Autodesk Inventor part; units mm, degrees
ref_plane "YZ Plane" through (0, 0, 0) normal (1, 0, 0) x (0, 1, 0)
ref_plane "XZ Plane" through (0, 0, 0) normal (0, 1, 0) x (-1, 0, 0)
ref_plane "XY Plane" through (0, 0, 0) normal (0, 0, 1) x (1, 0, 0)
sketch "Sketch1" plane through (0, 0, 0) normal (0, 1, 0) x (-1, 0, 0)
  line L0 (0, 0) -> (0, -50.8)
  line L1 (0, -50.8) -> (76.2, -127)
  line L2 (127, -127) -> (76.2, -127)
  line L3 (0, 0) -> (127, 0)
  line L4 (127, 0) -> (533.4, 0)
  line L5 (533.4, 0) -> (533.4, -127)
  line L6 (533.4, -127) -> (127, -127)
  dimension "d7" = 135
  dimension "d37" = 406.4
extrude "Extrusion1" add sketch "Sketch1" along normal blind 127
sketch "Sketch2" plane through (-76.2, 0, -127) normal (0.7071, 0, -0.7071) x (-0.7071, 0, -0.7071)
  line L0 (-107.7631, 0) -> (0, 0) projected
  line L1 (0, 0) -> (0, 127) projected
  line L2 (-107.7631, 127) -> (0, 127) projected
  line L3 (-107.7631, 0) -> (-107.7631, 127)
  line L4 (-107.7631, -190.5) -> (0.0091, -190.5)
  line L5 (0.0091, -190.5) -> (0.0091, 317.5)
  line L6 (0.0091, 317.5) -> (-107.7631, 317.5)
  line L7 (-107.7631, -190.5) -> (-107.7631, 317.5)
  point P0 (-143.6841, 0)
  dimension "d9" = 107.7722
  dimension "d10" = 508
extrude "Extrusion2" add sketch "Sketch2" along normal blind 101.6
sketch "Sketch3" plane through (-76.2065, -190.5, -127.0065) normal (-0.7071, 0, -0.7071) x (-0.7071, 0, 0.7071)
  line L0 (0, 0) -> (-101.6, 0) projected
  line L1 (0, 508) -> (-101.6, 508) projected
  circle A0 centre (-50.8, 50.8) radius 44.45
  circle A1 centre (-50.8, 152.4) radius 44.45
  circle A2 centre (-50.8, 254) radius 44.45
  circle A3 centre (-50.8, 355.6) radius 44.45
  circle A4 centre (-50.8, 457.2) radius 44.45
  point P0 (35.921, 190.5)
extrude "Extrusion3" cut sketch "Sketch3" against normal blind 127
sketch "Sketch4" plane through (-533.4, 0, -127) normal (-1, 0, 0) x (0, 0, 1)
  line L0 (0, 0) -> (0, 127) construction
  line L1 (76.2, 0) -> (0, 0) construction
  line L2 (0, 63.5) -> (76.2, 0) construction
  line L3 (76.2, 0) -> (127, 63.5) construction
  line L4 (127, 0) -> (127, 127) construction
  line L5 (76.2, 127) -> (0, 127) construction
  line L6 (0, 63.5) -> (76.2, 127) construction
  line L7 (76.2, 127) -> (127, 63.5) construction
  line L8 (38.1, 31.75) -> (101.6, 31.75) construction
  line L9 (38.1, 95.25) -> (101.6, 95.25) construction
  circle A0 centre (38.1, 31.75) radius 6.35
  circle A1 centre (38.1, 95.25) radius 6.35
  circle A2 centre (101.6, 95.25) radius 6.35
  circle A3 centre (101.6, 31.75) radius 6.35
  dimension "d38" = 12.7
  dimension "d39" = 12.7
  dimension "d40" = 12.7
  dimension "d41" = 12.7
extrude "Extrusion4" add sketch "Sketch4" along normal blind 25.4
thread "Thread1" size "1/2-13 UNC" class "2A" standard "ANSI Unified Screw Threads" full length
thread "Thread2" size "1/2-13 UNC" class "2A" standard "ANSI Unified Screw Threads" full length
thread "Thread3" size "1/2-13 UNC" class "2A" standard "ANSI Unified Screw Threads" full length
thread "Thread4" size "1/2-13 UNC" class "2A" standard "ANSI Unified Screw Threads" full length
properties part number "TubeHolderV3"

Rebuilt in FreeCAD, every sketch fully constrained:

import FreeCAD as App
import Part
import Sketcher
Q = App.Units.Quantity


def add_polygon(sketch, points):
    """Adds a closed chain of lines whose ends are joined by coincident constraints."""
    first, n = sketch.GeometryCount, len(points)
    for a, b in zip(points, points[1:] + points[:1]):
        sketch.addGeometry(Part.LineSegment(App.Vector(*a, 0), App.Vector(*b, 0)), False)
    for i in range(n):
        sketch.addConstraint(Sketcher.Constraint("Coincident", first + i, 2, first + (i + 1) % n, 1))

doc = App.newDocument("Part")
params = doc.addObject("Spreadsheet::Sheet", "Params")
for row, (alias, value) in enumerate([
    ("sketch1_width", "21 in"),
    ("sketch1_width2", "18 in"),
    ("sketch1_height", "2 in"),
    ("pad1_length", "5 in"),
    ("sketch2_height", "20 in"),
    ("sketch2_width", "4.243 in"),
    ("pad2_length", "4 in"),
    ("sketch3_diameter", "3.5 in"),
    ("pocket1_length", "5 in"),
    ("sketch4_diameter", "0.5 in"),
    ("pad3_length", "1 in"),
], start=1):
    params.set(f"A{row}", alias)
    params.set(f"B{row}", "=" + value)
    params.setAlias(f"B{row}", alias)

body = doc.addObject("PartDesign::Body", "Body")

sketch1 = body.newObject("Sketcher::SketchObject", "Sketch")
sketch1.AttachmentSupport = (doc.getObject("XZ_Plane"), [""])
sketch1.MapMode = "FlatFace"
add_polygon(sketch1, [(-533.4, 0), (0, 0), (0, -50.8), (-76.2, -127), (-533.4, -127)])
sketch1.addConstraint(Sketcher.Constraint("Horizontal", 0))
sketch1.addConstraint(Sketcher.Constraint("Vertical", 1))
sketch1.addConstraint(Sketcher.Constraint("Horizontal", 3))
sketch1.addConstraint(Sketcher.Constraint("Vertical", 4))
sketch1.addConstraint(Sketcher.Constraint("Coincident", 0, 2, -1, 1))
sketch1.addConstraint(Sketcher.Constraint("Angle", 2, Q("-135 deg")))
sketch1.addConstraint(Sketcher.Constraint("DistanceX", 0, 1, 0, 2, Q("21 in")))
sketch1.addConstraint(Sketcher.Constraint("DistanceX", 3, 2, 3, 1, Q("18 in")))
sketch1.addConstraint(Sketcher.Constraint("DistanceY", 1, 2, 1, 1, Q("2 in")))
sketch1.setExpression("Constraints[11]", "Params.sketch1_width")
sketch1.setExpression("Constraints[12]", "Params.sketch1_width2")
sketch1.setExpression("Constraints[13]", "Params.sketch1_height")
pad1 = body.newObject("PartDesign::Pad", "Pad")
pad1.Profile = sketch1
pad1.setExpression("Length", "Params.pad1_length")
pad1.Reversed = True

sketch2 = body.newObject("Sketcher::SketchObject", "Sketch001")
sketch2.Placement = App.Placement(App.Vector(-76.2, 0, -127), App.Rotation(App.Vector(-0.707106781, 0, -0.707106781), App.Vector(0, 0.999999999, 0), App.Vector(0.707106781, 0, -0.707106781), "ZXY"))
add_polygon(sketch2, [(-107.7631, -190.5), (0.0091, -190.5), (0.0091, 317.5), (-107.7631, 317.5)])
sketch2.addConstraint(Sketcher.Constraint("Horizontal", 0))
sketch2.addConstraint(Sketcher.Constraint("Vertical", 1))
sketch2.addConstraint(Sketcher.Constraint("Horizontal", 2))
sketch2.addConstraint(Sketcher.Constraint("Vertical", 3))
sketch2.addConstraint(Sketcher.Constraint("DistanceY", 1, 1, 1, 2, Q("20 in")))
sketch2.addConstraint(Sketcher.Constraint("DistanceX", 0, 1, 0, 2, Q("4.243 in")))
sketch2.addConstraint(Sketcher.Constraint("DistanceY", 0, 2, -1, 1, Q("7.5 in")))
sketch2.addConstraint(Sketcher.Constraint("DistanceX", -1, 1, 0, 2, 0.009))
sketch2.setExpression("Constraints[8]", "Params.sketch2_height")
sketch2.setExpression("Constraints[9]", "Params.sketch2_width")
pad2 = body.newObject("PartDesign::Pad", "Pad001")
pad2.Profile = sketch2
pad2.setExpression("Length", "Params.pad2_length")

sketch3 = body.newObject("Sketcher::SketchObject", "Sketch002")
sketch3.Placement = App.Placement(App.Vector(-76.2065, -190.5, -127.0065), App.Rotation(App.Vector(-0.707106781, 0, 0.707106781), App.Vector(0, 0.999999999, 0), App.Vector(-0.707106781, 0, -0.707106781), "ZXY"))
sketch3.addGeometry(Part.Circle(App.Vector(-50.8, 50.8, 0), App.Vector(0, 0, 1), 44.45), False)
sketch3.addGeometry(Part.Circle(App.Vector(-50.8, 152.4, 0), App.Vector(0, 0, 1), 44.45), False)
sketch3.addGeometry(Part.Circle(App.Vector(-50.8, 254, 0), App.Vector(0, 0, 1), 44.45), False)
sketch3.addGeometry(Part.Circle(App.Vector(-50.8, 355.6, 0), App.Vector(0, 0, 1), 44.45), False)
sketch3.addGeometry(Part.Circle(App.Vector(-50.8, 457.2, 0), App.Vector(0, 0, 1), 44.45), False)
sketch3.addConstraint(Sketcher.Constraint("Equal", 0, 1))
sketch3.addConstraint(Sketcher.Constraint("Equal", 1, 2))
sketch3.addConstraint(Sketcher.Constraint("Equal", 2, 3))
sketch3.addConstraint(Sketcher.Constraint("Equal", 3, 4))
sketch3.addConstraint(Sketcher.Constraint("Vertical", 0, 3, 1, 3))
sketch3.addConstraint(Sketcher.Constraint("Vertical", 1, 3, 2, 3))
sketch3.addConstraint(Sketcher.Constraint("Vertical", 2, 3, 3, 3))
sketch3.addConstraint(Sketcher.Constraint("Vertical", 3, 3, 4, 3))
sketch3.addConstraint(Sketcher.Constraint("Diameter", 0, Q("3.5 in")))
sketch3.addConstraint(Sketcher.Constraint("DistanceX", 0, 3, -1, 1, Q("2 in")))
sketch3.addConstraint(Sketcher.Constraint("DistanceY", -1, 1, 0, 3, Q("2 in")))
sketch3.addConstraint(Sketcher.Constraint("DistanceY", -1, 1, 1, 3, Q("6 in")))
sketch3.addConstraint(Sketcher.Constraint("DistanceY", -1, 1, 2, 3, Q("10 in")))
sketch3.addConstraint(Sketcher.Constraint("DistanceY", -1, 1, 3, 3, Q("14 in")))
sketch3.addConstraint(Sketcher.Constraint("DistanceY", -1, 1, 4, 3, Q("18 in")))
sketch3.setExpression("Constraints[8]", "Params.sketch3_diameter")
pocket1 = body.newObject("PartDesign::Pocket", "Pocket")
pocket1.Profile = sketch3
pocket1.setExpression("Length", "Params.pocket1_length")

sketch4 = body.newObject("Sketcher::SketchObject", "Sketch003")
sketch4.AttachmentSupport = (doc.getObject("YZ_Plane"), [""])
sketch4.MapMode = "FlatFace"
sketch4.AttachmentOffset = App.Placement(App.Vector(0, 0, -21 * 25.4), App.Rotation())
sketch4.addGeometry(Part.Circle(App.Vector(31.75, -88.9, 0), App.Vector(0, 0, 1), 6.35), False)
sketch4.addGeometry(Part.Circle(App.Vector(95.25, -88.9, 0), App.Vector(0, 0, 1), 6.35), False)
sketch4.addGeometry(Part.Circle(App.Vector(95.25, -25.4, 0), App.Vector(0, 0, 1), 6.35), False)
sketch4.addGeometry(Part.Circle(App.Vector(31.75, -25.4, 0), App.Vector(0, 0, 1), 6.35), False)
sketch4.addConstraint(Sketcher.Constraint("Equal", 0, 1))
sketch4.addConstraint(Sketcher.Constraint("Equal", 1, 2))
sketch4.addConstraint(Sketcher.Constraint("Equal", 2, 3))
sketch4.addConstraint(Sketcher.Constraint("Horizontal", 0, 3, 1, 3))
sketch4.addConstraint(Sketcher.Constraint("Horizontal", 2, 3, 3, 3))
sketch4.addConstraint(Sketcher.Constraint("Vertical", 1, 3, 2, 3))
sketch4.addConstraint(Sketcher.Constraint("Vertical", 0, 3, 3, 3))
sketch4.addConstraint(Sketcher.Constraint("Diameter", 0, Q("0.5 in")))
sketch4.addConstraint(Sketcher.Constraint("DistanceY", 2, 3, -1, 1, Q("1 in")))
sketch4.addConstraint(Sketcher.Constraint("DistanceY", 0, 3, -1, 1, Q("3.5 in")))
sketch4.addConstraint(Sketcher.Constraint("DistanceX", 0, 3, 1, 3, Q("2.5 in")))
sketch4.addConstraint(Sketcher.Constraint("DistanceX", -1, 1, 0, 3, Q("1.25 in")))
sketch4.setExpression("Constraints[7]", "Params.sketch4_diameter")
pad3 = body.newObject("PartDesign::Pad", "Pad002")
pad3.Profile = sketch4
pad3.setExpression("Length", "Params.pad3_length")
pad3.Reversed = True

doc.recompute()
